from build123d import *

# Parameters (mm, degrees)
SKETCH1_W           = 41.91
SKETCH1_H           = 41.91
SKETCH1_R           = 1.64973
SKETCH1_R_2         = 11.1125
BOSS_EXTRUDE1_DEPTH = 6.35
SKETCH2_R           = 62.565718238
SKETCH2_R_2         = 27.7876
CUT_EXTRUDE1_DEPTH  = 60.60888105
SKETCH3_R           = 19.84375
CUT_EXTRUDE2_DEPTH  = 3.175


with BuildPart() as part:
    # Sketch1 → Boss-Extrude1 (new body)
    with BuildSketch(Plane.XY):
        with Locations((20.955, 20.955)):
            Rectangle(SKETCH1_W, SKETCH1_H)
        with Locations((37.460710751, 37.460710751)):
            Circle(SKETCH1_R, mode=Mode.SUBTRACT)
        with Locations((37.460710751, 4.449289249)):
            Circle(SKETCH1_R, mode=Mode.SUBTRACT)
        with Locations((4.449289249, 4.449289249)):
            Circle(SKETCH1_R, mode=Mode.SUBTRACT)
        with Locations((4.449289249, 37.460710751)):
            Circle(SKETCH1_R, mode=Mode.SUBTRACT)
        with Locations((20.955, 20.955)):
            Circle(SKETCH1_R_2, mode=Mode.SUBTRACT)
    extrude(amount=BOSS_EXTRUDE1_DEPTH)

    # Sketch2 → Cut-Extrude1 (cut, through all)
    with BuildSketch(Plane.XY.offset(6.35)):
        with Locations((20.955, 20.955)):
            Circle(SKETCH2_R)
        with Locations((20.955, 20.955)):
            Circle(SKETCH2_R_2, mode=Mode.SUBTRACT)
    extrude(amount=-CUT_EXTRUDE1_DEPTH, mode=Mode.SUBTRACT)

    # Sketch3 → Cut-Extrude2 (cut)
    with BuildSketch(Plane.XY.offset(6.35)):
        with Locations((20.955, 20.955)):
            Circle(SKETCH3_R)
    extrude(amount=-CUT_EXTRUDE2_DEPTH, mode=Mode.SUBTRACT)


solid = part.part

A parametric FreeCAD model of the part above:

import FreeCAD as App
import Part
import Sketcher
Q = App.Units.Quantity


def add_polygon(sketch, points):
    """Adds a closed chain of lines whose ends are joined by coincident constraints."""
    first, n = sketch.GeometryCount, len(points)
    for a, b in zip(points, points[1:] + points[:1]):
        sketch.addGeometry(Part.LineSegment(App.Vector(*a, 0), App.Vector(*b, 0)), False)
    for i in range(n):
        sketch.addConstraint(Sketcher.Constraint("Coincident", first + i, 2, first + (i + 1) % n, 1))

doc = App.newDocument("Part")
params = doc.addObject("Spreadsheet::Sheet", "Params")
for row, (alias, value) in enumerate([
    ("sketch1_diameter", "0.875 in"),
    ("sketch1_width", "1.65 in"),
    ("pad1_length", "0.25 in"),
    ("sketch2_diameter", "2.188 in"),
    ("sketch3_diameter", "1.5625 in"),
    ("pocket2_length", "0.125 in"),
], start=1):
    params.set(f"A{row}", alias)
    params.set(f"B{row}", "=" + value)
    params.setAlias(f"B{row}", alias)

body = doc.addObject("PartDesign::Body", "Body")

sketch1 = body.newObject("Sketcher::SketchObject", "Sketch")
sketch1.AttachmentSupport = (doc.getObject("XY_Plane"), [""])
sketch1.MapMode = "FlatFace"
add_polygon(sketch1, [(0, 41.9), (0, 0), (41.9, 0), (41.9, 41.9)])
sketch1.addGeometry(Part.Circle(App.Vector(4.4, 4.4, 0), App.Vector(0, 0, 1), 1.6), False)
sketch1.addGeometry(Part.Circle(App.Vector(37.5, 4.4, 0), App.Vector(0, 0, 1), 1.6), False)
sketch1.addGeometry(Part.Circle(App.Vector(4.4, 37.5, 0), App.Vector(0, 0, 1), 1.6), False)
sketch1.addGeometry(Part.Circle(App.Vector(21, 21, 0), App.Vector(0, 0, 1), 11.1), False)
sketch1.addGeometry(Part.Circle(App.Vector(37.5, 37.5, 0), App.Vector(0, 0, 1), 1.6), False)
sketch1.addConstraint(Sketcher.Constraint("Vertical", 0))
sketch1.addConstraint(Sketcher.Constraint("Horizontal", 1))
sketch1.addConstraint(Sketcher.Constraint("Vertical", 2))
sketch1.addConstraint(Sketcher.Constraint("Horizontal", 3))
sketch1.addConstraint(Sketcher.Constraint("Coincident", 0, 2, -1, 1))
sketch1.addConstraint(Sketcher.Constraint("Equal", 4, 5))
sketch1.addConstraint(Sketcher.Constraint("Equal", 5, 6))
sketch1.addConstraint(Sketcher.Constraint("Equal", 6, 8))
sketch1.addConstraint(Sketcher.Constraint("Horizontal", 4, 3, 5, 3))
sketch1.addConstraint(Sketcher.Constraint("Horizontal", 6, 3, 8, 3))
sketch1.addConstraint(Sketcher.Constraint("Vertical", 4, 3, 6, 3))
sketch1.addConstraint(Sketcher.Constraint("Vertical", 5, 3, 8, 3))
sketch1.addConstraint(Sketcher.Constraint("Equal", 3, 0))
sketch1.addConstraint(Sketcher.Constraint("Diameter", 7, Q("0.875 in")))
sketch1.addConstraint(Sketcher.Constraint("Diameter", 4, Q("0.1299 in")))
sketch1.addConstraint(Sketcher.Constraint("DistanceX", 1, 1, 1, 2, Q("1.65 in")))
sketch1.addConstraint(Sketcher.Constraint("DistanceX", -1, 1, 7, 3, Q("0.825 in")))
sketch1.addConstraint(Sketcher.Constraint("DistanceY", -1, 1, 7, 3, Q("0.825 in")))
sketch1.addConstraint(Sketcher.Constraint("DistanceX", -1, 1, 4, 3, Q("4.449289 mm")))
sketch1.addConstraint(Sketcher.Constraint("DistanceY", -1, 1, 4, 3, Q("4.449289 mm")))
sketch1.addConstraint(Sketcher.Constraint("DistanceX", -1, 1, 5, 3, Q("37.460711 mm")))
sketch1.addConstraint(Sketcher.Constraint("DistanceY", -1, 1, 6, 3, Q("37.460711 mm")))
sketch1.setExpression("Constraints[17]", "Params.sketch1_diameter")
sketch1.setExpression("Constraints[19]", "Params.sketch1_width")
pad1 = body.newObject("PartDesign::Pad", "Pad")
pad1.Profile = sketch1
pad1.setExpression("Length", "Params.pad1_length")

sketch2 = body.newObject("Sketcher::SketchObject", "Sketch001")
sketch2.AttachmentSupport = (doc.getObject("XY_Plane"), [""])
sketch2.MapMode = "FlatFace"
sketch2.AttachmentOffset = App.Placement(App.Vector(0, 0, 0.25 * 25.4), App.Rotation())
sketch2.addGeometry(Part.Circle(App.Vector(21, 21, 0), App.Vector(0, 0, 1), 63), False)
sketch2.addGeometry(Part.Circle(App.Vector(21, 21, 0), App.Vector(0, 0, 1), 28), False)
sketch2.addConstraint(Sketcher.Constraint("Coincident", 1, 3, 0, 3))
sketch2.addConstraint(Sketcher.Constraint("Diameter", 1, Q("2.188 in")))
sketch2.addConstraint(Sketcher.Constraint("DistanceX", -1, 1, 0, 3, Q("0.825 in")))
sketch2.addConstraint(Sketcher.Constraint("DistanceY", -1, 1, 0, 3, Q("0.825 in")))
sketch2.addConstraint(Sketcher.Constraint("Diameter", 0, Q("125.131436 mm")))
sketch2.setExpression("Constraints[1]", "Params.sketch2_diameter")
pocket1 = body.newObject("PartDesign::Pocket", "Pocket")
pocket1.Profile = sketch2
pocket1.Type = "ThroughAll"

sketch3 = body.newObject("Sketcher::SketchObject", "Sketch002")
sketch3.AttachmentSupport = (doc.getObject("XY_Plane"), [""])
sketch3.MapMode = "FlatFace"
sketch3.AttachmentOffset = App.Placement(App.Vector(0, 0, 0.25 * 25.4), App.Rotation())
sketch3.addGeometry(Part.Circle(App.Vector(21, 21, 0), App.Vector(0, 0, 1), 20), False)
sketch3.addConstraint(Sketcher.Constraint("Diameter", 0, Q("1.5625 in")))
sketch3.addConstraint(Sketcher.Constraint("DistanceX", -1, 1, 0, 3, Q("0.825 in")))
sketch3.addConstraint(Sketcher.Constraint("DistanceY", -1, 1, 0, 3, Q("0.825 in")))
sketch3.setExpression("Constraints[0]", "Params.sketch3_diameter")
pocket2 = body.newObject("PartDesign::Pocket", "Pocket001")
pocket2.Profile = sketch3
pocket2.setExpression("Length", "Params.pocket2_length")

doc.recompute()
